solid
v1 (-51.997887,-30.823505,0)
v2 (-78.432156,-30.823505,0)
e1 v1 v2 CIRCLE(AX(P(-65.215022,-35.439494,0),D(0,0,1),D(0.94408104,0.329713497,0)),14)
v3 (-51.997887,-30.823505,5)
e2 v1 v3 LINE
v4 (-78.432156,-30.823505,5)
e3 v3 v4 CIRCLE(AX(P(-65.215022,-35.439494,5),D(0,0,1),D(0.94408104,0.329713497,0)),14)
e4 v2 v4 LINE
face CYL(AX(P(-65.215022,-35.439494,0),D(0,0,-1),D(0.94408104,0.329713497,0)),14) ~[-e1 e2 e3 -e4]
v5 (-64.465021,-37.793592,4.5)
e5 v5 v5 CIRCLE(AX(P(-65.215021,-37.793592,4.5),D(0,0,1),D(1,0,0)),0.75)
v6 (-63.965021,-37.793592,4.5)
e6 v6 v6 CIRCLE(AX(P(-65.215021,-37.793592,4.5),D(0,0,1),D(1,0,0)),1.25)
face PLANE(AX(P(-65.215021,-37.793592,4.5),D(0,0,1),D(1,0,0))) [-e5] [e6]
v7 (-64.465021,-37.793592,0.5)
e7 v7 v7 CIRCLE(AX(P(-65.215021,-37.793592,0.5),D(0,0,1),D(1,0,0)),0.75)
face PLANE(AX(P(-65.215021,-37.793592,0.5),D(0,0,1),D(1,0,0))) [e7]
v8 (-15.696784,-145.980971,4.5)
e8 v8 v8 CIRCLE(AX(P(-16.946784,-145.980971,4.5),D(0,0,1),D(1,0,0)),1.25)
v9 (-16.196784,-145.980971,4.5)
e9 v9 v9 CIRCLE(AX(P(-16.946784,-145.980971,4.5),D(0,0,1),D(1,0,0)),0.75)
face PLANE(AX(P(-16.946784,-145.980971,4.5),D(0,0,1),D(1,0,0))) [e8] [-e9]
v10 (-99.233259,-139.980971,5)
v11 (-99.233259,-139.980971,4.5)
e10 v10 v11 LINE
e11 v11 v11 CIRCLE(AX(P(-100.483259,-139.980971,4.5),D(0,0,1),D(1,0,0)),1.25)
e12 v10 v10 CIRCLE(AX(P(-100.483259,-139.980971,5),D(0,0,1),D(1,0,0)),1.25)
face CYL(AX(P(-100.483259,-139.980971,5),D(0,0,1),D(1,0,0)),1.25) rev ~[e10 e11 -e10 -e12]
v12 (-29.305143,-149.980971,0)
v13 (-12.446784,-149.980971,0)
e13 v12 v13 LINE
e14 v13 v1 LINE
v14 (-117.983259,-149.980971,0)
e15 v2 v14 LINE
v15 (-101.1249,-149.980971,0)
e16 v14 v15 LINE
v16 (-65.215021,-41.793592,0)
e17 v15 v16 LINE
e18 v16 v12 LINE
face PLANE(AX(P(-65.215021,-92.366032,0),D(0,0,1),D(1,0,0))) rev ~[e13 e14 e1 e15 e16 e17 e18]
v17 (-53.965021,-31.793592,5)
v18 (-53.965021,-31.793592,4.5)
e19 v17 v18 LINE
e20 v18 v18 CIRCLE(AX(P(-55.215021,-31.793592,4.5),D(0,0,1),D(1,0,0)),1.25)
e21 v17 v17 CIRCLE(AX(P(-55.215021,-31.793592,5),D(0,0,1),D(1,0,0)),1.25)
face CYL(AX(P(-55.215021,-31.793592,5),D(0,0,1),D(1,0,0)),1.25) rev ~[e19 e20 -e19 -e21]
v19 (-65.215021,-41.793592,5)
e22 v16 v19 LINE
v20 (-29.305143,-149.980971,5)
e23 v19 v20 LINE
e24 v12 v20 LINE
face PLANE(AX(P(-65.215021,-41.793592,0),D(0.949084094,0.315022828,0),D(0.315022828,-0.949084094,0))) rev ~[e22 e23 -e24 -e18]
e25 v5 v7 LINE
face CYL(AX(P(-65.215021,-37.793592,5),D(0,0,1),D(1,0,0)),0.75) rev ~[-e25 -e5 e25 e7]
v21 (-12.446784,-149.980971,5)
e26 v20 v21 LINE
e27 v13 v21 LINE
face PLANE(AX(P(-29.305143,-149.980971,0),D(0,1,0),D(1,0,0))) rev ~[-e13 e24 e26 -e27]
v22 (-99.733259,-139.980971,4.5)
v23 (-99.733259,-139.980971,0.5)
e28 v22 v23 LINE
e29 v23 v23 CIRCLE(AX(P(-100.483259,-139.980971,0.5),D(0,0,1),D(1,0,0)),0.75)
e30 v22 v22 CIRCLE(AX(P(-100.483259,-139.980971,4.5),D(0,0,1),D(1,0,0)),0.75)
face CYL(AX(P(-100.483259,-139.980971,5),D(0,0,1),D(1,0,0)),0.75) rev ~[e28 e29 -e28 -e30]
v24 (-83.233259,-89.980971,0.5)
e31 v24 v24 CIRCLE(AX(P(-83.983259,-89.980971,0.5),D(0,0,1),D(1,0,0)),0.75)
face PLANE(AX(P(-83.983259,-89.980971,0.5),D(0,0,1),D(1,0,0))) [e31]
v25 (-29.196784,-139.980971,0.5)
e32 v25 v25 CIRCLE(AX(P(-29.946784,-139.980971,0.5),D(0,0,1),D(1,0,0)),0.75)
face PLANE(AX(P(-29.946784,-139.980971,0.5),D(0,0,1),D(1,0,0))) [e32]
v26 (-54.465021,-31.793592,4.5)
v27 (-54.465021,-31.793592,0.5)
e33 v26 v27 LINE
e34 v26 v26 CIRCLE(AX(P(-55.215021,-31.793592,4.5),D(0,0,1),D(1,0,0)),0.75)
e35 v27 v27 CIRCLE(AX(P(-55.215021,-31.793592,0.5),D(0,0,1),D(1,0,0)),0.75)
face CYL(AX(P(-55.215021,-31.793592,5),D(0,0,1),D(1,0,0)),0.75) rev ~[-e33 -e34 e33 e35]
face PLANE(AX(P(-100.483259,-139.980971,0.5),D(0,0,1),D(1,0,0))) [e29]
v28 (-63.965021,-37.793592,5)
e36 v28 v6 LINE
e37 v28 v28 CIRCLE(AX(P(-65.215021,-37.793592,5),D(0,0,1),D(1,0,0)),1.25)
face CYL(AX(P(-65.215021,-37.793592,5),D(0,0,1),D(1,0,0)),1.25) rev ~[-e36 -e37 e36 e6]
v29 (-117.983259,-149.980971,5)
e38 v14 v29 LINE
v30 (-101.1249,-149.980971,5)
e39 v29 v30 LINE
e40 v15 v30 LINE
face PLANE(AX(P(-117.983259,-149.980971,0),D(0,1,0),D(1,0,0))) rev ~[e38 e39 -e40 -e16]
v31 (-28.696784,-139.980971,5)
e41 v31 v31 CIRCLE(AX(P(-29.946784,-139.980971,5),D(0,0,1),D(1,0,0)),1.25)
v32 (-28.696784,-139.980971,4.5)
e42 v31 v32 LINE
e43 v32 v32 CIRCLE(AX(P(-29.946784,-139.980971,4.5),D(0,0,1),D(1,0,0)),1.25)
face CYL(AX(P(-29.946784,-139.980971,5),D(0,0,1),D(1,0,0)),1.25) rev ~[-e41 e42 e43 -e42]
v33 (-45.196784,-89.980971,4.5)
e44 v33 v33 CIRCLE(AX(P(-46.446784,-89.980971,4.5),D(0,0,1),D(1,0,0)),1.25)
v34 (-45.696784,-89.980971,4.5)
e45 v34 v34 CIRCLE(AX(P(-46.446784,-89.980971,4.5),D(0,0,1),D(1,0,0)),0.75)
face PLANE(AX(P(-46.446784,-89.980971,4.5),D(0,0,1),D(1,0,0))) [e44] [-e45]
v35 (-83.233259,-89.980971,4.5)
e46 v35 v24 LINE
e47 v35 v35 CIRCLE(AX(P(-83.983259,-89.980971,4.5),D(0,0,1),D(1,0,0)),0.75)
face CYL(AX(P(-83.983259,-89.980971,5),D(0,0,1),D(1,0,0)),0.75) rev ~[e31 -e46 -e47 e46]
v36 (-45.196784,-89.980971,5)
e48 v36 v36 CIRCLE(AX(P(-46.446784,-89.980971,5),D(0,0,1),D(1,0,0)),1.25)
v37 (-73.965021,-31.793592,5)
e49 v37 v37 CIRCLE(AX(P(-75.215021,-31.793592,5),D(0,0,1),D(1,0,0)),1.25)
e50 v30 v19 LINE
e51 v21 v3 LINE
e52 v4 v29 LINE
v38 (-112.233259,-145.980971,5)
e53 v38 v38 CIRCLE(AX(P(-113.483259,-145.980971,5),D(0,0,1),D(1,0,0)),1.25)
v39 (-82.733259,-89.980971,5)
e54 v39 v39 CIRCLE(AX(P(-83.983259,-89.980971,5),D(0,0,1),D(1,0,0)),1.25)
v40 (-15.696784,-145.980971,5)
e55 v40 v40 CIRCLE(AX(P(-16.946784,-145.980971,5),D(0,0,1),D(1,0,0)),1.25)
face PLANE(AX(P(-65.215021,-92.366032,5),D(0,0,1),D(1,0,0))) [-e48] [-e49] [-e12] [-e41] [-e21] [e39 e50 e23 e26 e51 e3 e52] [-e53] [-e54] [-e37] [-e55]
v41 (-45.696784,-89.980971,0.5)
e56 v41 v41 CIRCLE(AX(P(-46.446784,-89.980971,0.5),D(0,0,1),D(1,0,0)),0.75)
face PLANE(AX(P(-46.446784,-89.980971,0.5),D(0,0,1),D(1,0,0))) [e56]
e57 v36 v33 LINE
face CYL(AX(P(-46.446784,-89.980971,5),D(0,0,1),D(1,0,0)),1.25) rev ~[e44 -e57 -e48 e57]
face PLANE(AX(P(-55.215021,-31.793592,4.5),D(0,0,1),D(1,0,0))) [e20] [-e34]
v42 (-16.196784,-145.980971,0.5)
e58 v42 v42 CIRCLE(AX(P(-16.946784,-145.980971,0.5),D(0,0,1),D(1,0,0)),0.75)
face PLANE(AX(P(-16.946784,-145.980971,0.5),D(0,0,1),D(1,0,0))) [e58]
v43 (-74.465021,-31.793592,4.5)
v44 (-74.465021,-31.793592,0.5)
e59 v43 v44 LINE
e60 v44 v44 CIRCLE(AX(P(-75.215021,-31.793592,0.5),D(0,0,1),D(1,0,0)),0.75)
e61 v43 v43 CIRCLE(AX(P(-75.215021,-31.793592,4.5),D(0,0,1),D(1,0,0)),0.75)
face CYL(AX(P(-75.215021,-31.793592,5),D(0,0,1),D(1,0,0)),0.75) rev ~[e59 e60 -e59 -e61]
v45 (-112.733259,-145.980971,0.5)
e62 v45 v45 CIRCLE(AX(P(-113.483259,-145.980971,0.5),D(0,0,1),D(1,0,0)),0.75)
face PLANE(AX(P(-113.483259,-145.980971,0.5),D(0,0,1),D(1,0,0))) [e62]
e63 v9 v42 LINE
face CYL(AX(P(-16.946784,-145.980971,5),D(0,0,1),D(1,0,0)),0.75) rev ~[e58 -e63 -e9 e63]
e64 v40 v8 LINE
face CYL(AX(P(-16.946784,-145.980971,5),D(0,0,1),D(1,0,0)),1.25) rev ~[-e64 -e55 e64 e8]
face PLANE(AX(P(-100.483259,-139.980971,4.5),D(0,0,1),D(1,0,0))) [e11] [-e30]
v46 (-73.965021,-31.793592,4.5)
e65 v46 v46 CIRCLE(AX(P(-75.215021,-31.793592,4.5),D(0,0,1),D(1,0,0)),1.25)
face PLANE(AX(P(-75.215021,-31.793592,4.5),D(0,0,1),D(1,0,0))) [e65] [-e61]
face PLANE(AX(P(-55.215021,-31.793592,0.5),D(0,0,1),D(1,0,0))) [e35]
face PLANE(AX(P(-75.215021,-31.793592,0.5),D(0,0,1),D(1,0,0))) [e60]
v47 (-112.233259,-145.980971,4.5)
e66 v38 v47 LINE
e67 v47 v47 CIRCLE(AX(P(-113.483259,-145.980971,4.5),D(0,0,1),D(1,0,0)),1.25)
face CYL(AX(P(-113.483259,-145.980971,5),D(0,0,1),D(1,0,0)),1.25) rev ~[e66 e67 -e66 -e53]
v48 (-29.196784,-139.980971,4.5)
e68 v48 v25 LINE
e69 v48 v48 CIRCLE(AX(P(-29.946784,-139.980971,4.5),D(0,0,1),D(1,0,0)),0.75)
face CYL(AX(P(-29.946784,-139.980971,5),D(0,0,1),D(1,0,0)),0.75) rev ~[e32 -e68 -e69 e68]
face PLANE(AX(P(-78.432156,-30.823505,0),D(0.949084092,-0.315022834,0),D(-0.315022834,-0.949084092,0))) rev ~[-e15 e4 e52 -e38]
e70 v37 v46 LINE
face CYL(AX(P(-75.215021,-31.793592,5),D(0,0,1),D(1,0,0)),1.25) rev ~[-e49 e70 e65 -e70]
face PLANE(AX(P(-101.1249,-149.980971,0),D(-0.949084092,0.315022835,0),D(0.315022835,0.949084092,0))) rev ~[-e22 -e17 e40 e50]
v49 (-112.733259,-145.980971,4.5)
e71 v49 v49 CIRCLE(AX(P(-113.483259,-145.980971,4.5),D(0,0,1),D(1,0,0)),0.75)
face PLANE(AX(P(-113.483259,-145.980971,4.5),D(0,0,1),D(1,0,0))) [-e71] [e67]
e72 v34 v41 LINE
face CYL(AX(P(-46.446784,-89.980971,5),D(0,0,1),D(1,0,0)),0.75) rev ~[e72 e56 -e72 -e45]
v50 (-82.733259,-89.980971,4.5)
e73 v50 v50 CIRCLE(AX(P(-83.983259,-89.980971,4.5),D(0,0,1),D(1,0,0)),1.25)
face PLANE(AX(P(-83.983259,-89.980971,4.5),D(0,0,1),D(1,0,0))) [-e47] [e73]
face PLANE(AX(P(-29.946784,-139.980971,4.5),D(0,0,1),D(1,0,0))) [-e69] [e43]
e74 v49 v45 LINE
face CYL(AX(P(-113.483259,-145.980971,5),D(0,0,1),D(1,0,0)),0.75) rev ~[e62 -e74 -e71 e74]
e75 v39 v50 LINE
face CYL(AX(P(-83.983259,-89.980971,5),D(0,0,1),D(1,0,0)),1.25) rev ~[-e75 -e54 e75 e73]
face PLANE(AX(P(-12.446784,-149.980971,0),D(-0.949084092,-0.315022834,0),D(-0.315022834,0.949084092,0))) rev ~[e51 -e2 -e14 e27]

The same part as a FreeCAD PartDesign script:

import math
import FreeCAD as App
import Part
import Sketcher
Q = App.Units.Quantity

doc = App.newDocument("Part")
body = doc.addObject("PartDesign::Body", "Body")

# Sketch on XY plane
sketch1 = doc.addObject("Sketcher::SketchObject", "Sketch")
body.addObject(sketch1)
sketch1.AttachmentSupport = (doc.XY_Plane, [""])
sketch1.MapMode = "FlatFace"
sketch1.addGeometry([
    Part.LineSegment(App.Vector(-101.1249, -149.980971, 0), App.Vector(-65.215021, -41.793592, 0)),  # 0
    Part.LineSegment(App.Vector(-65.215021, -41.793592, 0), App.Vector(-29.305143, -149.980971, 0)),  # 1
    Part.LineSegment(App.Vector(-29.305143, -149.980971, 0), App.Vector(-12.446784, -149.980971, 0)),  # 2
    Part.LineSegment(App.Vector(-12.446784, -149.980971, 0), App.Vector(-51.997887, -30.823505, 0)),  # 3
    Part.ArcOfCircle(Part.Circle(App.Vector(-65.215022, -35.439494, 0), App.Vector(0, 0, 1), 14), math.radians(19.251387), math.radians(160.748613)),  # 4
    Part.LineSegment(App.Vector(-78.432156, -30.823505, 0), App.Vector(-117.983259, -149.980971, 0)),  # 5
    Part.LineSegment(App.Vector(-117.983259, -149.980971, 0), App.Vector(-101.1249, -149.980971, 0)),  # 6
], False)
sketch1.addConstraint([
    Sketcher.Constraint("Coincident", 0, 2, 1, 1),
    Sketcher.Constraint("Coincident", 1, 2, 2, 1),
    Sketcher.Constraint("Coincident", 2, 2, 3, 1),
    Sketcher.Constraint("Coincident", 3, 2, 4, 1),
    Sketcher.Constraint("Coincident", 4, 2, 5, 1),
    Sketcher.Constraint("Coincident", 5, 2, 6, 1),
    Sketcher.Constraint("Coincident", 6, 2, 0, 1),
    Sketcher.Constraint("Horizontal", 2),
    Sketcher.Constraint("Horizontal", 6),
    Sketcher.Constraint("Radius", 4, Q("14 mm")),
    Sketcher.Constraint("DistanceX", 2, 1, 2, 2, Q("16.858359 mm")),
    Sketcher.Constraint("DistanceX", 6, 1, 6, 2, Q("16.858359 mm")),
    Sketcher.Constraint("DistanceX", 6, 2, -1, 1, Q("101.1249 mm")),
    Sketcher.Constraint("DistanceY", 0, 2, 4, 3, Q("6.354098 mm")),
    Sketcher.Constraint("Distance", 1, Q("113.991352 mm")),
    Sketcher.Constraint("DistanceX", 4, 3, -1, 1, Q("65.215022 mm")),
    Sketcher.Constraint("DistanceX", 0, 2, -1, 1, Q("65.215021 mm")),
    Sketcher.Constraint("DistanceY", 0, 2, -1, 1, Q("41.793592 mm")),
    Sketcher.Constraint("DistanceY", 1, 2, -1, 1, Q("149.980971 mm")),
    Sketcher.Constraint("DistanceY", 5, 2, -1, 1, Q("149.980971 mm")),
    Sketcher.Constraint("DistanceY", 4, 3, 3, 2, Q("4.615989 mm")),
    Sketcher.Constraint("DistanceY", 4, 3, 4, 2, Q("4.615989 mm")),
])
pad1 = doc.addObject("PartDesign::Pad", "Pad")
body.addObject(pad1)
pad1.Profile = sketch1
pad1.Length = 5

# Sketch on XY plane
sketch2 = doc.addObject("Sketcher::SketchObject", "Sketch001")
body.addObject(sketch2)
sketch2.AttachmentSupport = (doc.XY_Plane, [""])
sketch2.MapMode = "FlatFace"
sketch2.AttachmentOffset = App.Placement(App.Vector(0, 0, 5), App.Rotation())
sketch2.addGeometry([
    Part.Circle(App.Vector(-65.215021, -37.793592, 0), App.Vector(0, 0, 1), 0.75),  # 0
    Part.Circle(App.Vector(-113.483259, -145.980971, 0), App.Vector(0, 0, 1), 0.75),  # 1
    Part.Circle(App.Vector(-100.483259, -139.980971, 0), App.Vector(0, 0, 1), 0.75),  # 2
    Part.Circle(App.Vector(-29.946784, -139.980971, 0), App.Vector(0, 0, 1), 0.75),  # 3
    Part.Circle(App.Vector(-16.946784, -145.980971, 0), App.Vector(0, 0, 1), 0.75),  # 4
    Part.Circle(App.Vector(-83.983259, -89.980971, 0), App.Vector(0, 0, 1), 0.75),  # 5
    Part.Circle(App.Vector(-46.446784, -89.980971, 0), App.Vector(0, 0, 1), 0.75),  # 6
    Part.Circle(App.Vector(-75.215021, -31.793592, 0), App.Vector(0, 0, 1), 0.75),  # 7
    Part.Circle(App.Vector(-55.215021, -31.793592, 0), App.Vector(0, 0, 1), 0.75),  # 8
], False)
sketch2.addConstraint([
    Sketcher.Constraint("Equal", 0, 1),
    Sketcher.Constraint("Equal", 1, 2),
    Sketcher.Constraint("Equal", 2, 3),
    Sketcher.Constraint("Equal", 3, 4),
    Sketcher.Constraint("Equal", 4, 5),
    Sketcher.Constraint("Equal", 5, 6),
    Sketcher.Constraint("Equal", 6, 7),
    Sketcher.Constraint("Equal", 7, 8),
    Sketcher.Constraint("Horizontal", 2, 3, 3, 3),
    Sketcher.Constraint("Horizontal", 1, 3, 4, 3),
    Sketcher.Constraint("Horizontal", 5, 3, 6, 3),
    Sketcher.Constraint("Horizontal", 7, 3, 8, 3),
    Sketcher.Constraint("Diameter", 0, Q("1.5 mm")),
    Sketcher.Constraint("DistanceX", 1, 3, 2, 3, Q("13 mm")),
    Sketcher.Constraint("DistanceY", 1, 3, 2, 3, Q("6 mm")),
    Sketcher.Constraint("DistanceX", 3, 3, 4, 3, Q("13 mm")),
    Sketcher.Constraint("DistanceY", 2, 3, 5, 3, Q("50 mm")),
    Sketcher.Constraint("DistanceX", 7, 3, 0, 3, Q("10 mm")),
    Sketcher.Constraint("DistanceY", 0, 3, 7, 3, Q("6 mm")),
    Sketcher.Constraint("DistanceX", 0, 3, 8, 3, Q("10 mm")),
    Sketcher.Constraint("DistanceX", 2, 3, 5, 3, Q("16.5 mm")),
    Sketcher.Constraint("DistanceX", 6, 3, 3, 3, Q("16.5 mm")),
    Sketcher.Constraint("DistanceX", 0, 3, -1, 1, Q("65.215021 mm")),
    Sketcher.Constraint("DistanceY", 0, 3, -1, 1, Q("37.793592 mm")),
    Sketcher.Constraint("DistanceX", 1, 3, -1, 1, Q("113.483259 mm")),
    Sketcher.Constraint("DistanceY", 1, 3, -1, 1, Q("145.980971 mm")),
    Sketcher.Constraint("DistanceX", 3, 3, -1, 1, Q("29.946784 mm")),
])
pocket1 = doc.addObject("PartDesign::Pocket", "Pocket")
body.addObject(pocket1)
pocket1.Profile = sketch2
pocket1.Length = 4.5

# Sketch on XY plane
sketch3 = doc.addObject("Sketcher::SketchObject", "Sketch002")
body.addObject(sketch3)
sketch3.AttachmentSupport = (doc.XY_Plane, [""])
sketch3.MapMode = "FlatFace"
sketch3.AttachmentOffset = App.Placement(App.Vector(0, 0, 5), App.Rotation())
sketch3.addGeometry([
    Part.Circle(App.Vector(-75.215021, -31.793592, 0), App.Vector(0, 0, 1), 1.25),  # 0
    Part.Circle(App.Vector(-65.215021, -37.793592, 0), App.Vector(0, 0, 1), 1.25),  # 1
    Part.Circle(App.Vector(-55.215021, -31.793592, 0), App.Vector(0, 0, 1), 1.25),  # 2
    Part.Circle(App.Vector(-46.446784, -89.980971, 0), App.Vector(0, 0, 1), 1.25),  # 3
    Part.Circle(App.Vector(-83.983259, -89.980971, 0), App.Vector(0, 0, 1), 1.25),  # 4
    Part.Circle(App.Vector(-16.946784, -145.980971, 0), App.Vector(0, 0, 1), 1.25),  # 5
    Part.Circle(App.Vector(-29.946784, -139.980971, 0), App.Vector(0, 0, 1), 1.25),  # 6
    Part.Circle(App.Vector(-100.483259, -139.980971, 0), App.Vector(0, 0, 1), 1.25),  # 7
    Part.Circle(App.Vector(-113.483259, -145.980971, 0), App.Vector(0, 0, 1), 1.25),  # 8
], False)
sketch3.addConstraint([
    Sketcher.Constraint("Equal", 0, 1),
    Sketcher.Constraint("Equal", 1, 2),
    Sketcher.Constraint("Equal", 2, 3),
    Sketcher.Constraint("Equal", 3, 4),
    Sketcher.Constraint("Equal", 4, 5),
    Sketcher.Constraint("Equal", 5, 6),
    Sketcher.Constraint("Equal", 6, 7),
    Sketcher.Constraint("Equal", 7, 8),
    Sketcher.Constraint("Horizontal", 0, 3, 2, 3),
    Sketcher.Constraint("Horizontal", 3, 3, 4, 3),
    Sketcher.Constraint("Horizontal", 6, 3, 7, 3),
    Sketcher.Constraint("Horizontal", 5, 3, 8, 3),
    Sketcher.Constraint("Diameter", 0, Q("2.5 mm")),
    Sketcher.Constraint("DistanceX", 0, 3, 1, 3, Q("10 mm")),
    Sketcher.Constraint("DistanceY", 1, 3, 0, 3, Q("6 mm")),
    Sketcher.Constraint("DistanceX", 1, 3, 2, 3, Q("10 mm")),
    Sketcher.Constraint("DistanceY", 5, 3, 3, 3, Q("56 mm")),
    Sketcher.Constraint("DistanceX", 6, 3, 5, 3, Q("13 mm")),
    Sketcher.Constraint("DistanceY", 5, 3, 6, 3, Q("6 mm")),
    Sketcher.Constraint("DistanceX", 8, 3, 7, 3, Q("13 mm")),
    Sketcher.Constraint("DistanceX", 3, 3, 5, 3, Q("29.5 mm")),
    Sketcher.Constraint("DistanceX", 7, 3, 4, 3, Q("16.5 mm")),
    Sketcher.Constraint("DistanceX", 0, 3, -1, 1, Q("75.215021 mm")),
    Sketcher.Constraint("DistanceY", 1, 3, -1, 1, Q("37.793592 mm")),
    Sketcher.Constraint("DistanceY", 3, 3, -1, 1, Q("89.980971 mm")),
    Sketcher.Constraint("DistanceX", 4, 3, -1, 1, Q("83.983259 mm")),
    Sketcher.Constraint("DistanceX", 3, 3, -1, 1, Q("46.446784 mm")),
])
pocket2 = doc.addObject("PartDesign::Pocket", "Pocket001")
body.addObject(pocket2)
pocket2.Profile = sketch3
pocket2.Length = 0.5

doc.recompute()
